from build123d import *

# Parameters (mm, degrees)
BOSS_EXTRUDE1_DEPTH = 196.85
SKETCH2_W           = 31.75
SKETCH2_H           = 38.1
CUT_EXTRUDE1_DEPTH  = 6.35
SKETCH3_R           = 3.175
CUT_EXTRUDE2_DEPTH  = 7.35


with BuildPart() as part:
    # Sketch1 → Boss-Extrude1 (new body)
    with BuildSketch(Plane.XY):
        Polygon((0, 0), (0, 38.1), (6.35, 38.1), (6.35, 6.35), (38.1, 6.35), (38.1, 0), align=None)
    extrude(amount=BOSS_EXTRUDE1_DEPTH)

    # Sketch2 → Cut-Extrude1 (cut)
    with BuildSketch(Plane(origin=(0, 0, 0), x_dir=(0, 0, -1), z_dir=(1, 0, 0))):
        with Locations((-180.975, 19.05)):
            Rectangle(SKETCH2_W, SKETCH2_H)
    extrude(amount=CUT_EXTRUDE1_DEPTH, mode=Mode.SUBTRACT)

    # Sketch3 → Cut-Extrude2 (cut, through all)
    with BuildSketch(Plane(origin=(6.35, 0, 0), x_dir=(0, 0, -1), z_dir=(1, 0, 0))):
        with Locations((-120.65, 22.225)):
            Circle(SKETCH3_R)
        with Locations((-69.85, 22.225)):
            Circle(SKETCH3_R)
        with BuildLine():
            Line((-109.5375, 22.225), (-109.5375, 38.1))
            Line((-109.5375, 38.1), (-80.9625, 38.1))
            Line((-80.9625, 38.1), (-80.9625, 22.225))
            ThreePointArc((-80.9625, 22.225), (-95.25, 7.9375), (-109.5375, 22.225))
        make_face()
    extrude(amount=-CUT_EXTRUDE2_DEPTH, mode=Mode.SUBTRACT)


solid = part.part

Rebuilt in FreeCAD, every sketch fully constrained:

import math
import FreeCAD as App
import Part
import Sketcher

V = App.Vector
Q = App.Units.Quantity

doc = App.newDocument("Part")
body = doc.addObject("PartDesign::Body", "Body")

# Sketch on XY plane
sketch1 = body.newObject("Sketcher::SketchObject", "Sketch")
sketch1.AttachmentSupport = (doc.getObject("XY_Plane"), [""])
sketch1.MapMode = "FlatFace"
sketch1.addGeometry([
    Part.LineSegment(V(0, 38, 0), V(0, 0, 0)),  # 0
    Part.LineSegment(V(0, 0, 0), V(38, 0, 0)),  # 1
    Part.LineSegment(V(38, 0, 0), V(38, 6, 0)),  # 2
    Part.LineSegment(V(38, 6, 0), V(6, 6, 0)),  # 3
    Part.LineSegment(V(6, 6, 0), V(6, 38, 0)),  # 4
    Part.LineSegment(V(6, 38, 0), V(0, 38, 0)),  # 5
], False)
sketch1.addConstraint([
    Sketcher.Constraint("Coincident", 0, 2, 1, 1),
    Sketcher.Constraint("Coincident", 1, 2, 2, 1),
    Sketcher.Constraint("Coincident", 2, 2, 3, 1),
    Sketcher.Constraint("Coincident", 3, 2, 4, 1),
    Sketcher.Constraint("Coincident", 4, 2, 5, 1),
    Sketcher.Constraint("Coincident", 5, 2, 0, 1),
    Sketcher.Constraint("Vertical", 0),
    Sketcher.Constraint("Horizontal", 1),
    Sketcher.Constraint("Vertical", 2),
    Sketcher.Constraint("Horizontal", 3),
    Sketcher.Constraint("Vertical", 4),
    Sketcher.Constraint("Horizontal", 5),
    Sketcher.Constraint("Coincident", 0, 2, -1, 1),
    Sketcher.Constraint("Equal", 1, 0),
    Sketcher.Constraint("Equal", 5, 2),
    Sketcher.Constraint("DistanceX", 1, 1, 1, 2, Q("1.5 in")),
    Sketcher.Constraint("DistanceX", 3, 2, 3, 1, Q("1.25 in")),
])
pad1 = body.newObject("PartDesign::Pad", "Pad")
pad1.Profile = sketch1
pad1.Length = Q("7.75 in")

# Sketch on YZ plane
sketch2 = body.newObject("Sketcher::SketchObject", "Sketch001")
sketch2.AttachmentSupport = (doc.getObject("YZ_Plane"), [""])
sketch2.MapMode = "FlatFace"
sketch2.addGeometry([
    Part.LineSegment(V(38, 197, 0), V(0, 197, 0)),
    Part.LineSegment(V(0, 197, 0), V(0, 165, 0)),
    Part.LineSegment(V(0, 165, 0), V(38, 165, 0)),
    Part.LineSegment(V(38, 165, 0), V(38, 197, 0)),
], False)
sketch2.addConstraint([
    Sketcher.Constraint("Coincident", 0, 2, 1, 1),
    Sketcher.Constraint("Coincident", 1, 2, 2, 1),
    Sketcher.Constraint("Coincident", 2, 2, 3, 1),
    Sketcher.Constraint("Coincident", 3, 2, 0, 1),
    Sketcher.Constraint("Horizontal", 0),
    Sketcher.Constraint("Vertical", 1),
    Sketcher.Constraint("Horizontal", 2),
    Sketcher.Constraint("Vertical", 3),
    Sketcher.Constraint("PointOnObject", 0, 2, -2),
    Sketcher.Constraint("DistanceX", 0, 2, 0, 1, Q("1.5 in")),
    Sketcher.Constraint("DistanceY", 1, 2, 1, 1, Q("1.25 in")),
    Sketcher.Constraint("DistanceY", -1, 1, 1, 2, Q("6.5 in")),
])
pocket1 = body.newObject("PartDesign::Pocket", "Pocket")
pocket1.Profile = sketch2
pocket1.Length = Q("0.25 in")
pocket1.Reversed = True

# Sketch on YZ plane
sketch3 = body.newObject("Sketcher::SketchObject", "Sketch002")
sketch3.AttachmentSupport = (doc.getObject("YZ_Plane"), [""])
sketch3.MapMode = "FlatFace"
sketch3.AttachmentOffset = App.Placement(V(0, 0, 0.25 * 25.4), App.Rotation())
sketch3.addGeometry([
    Part.Circle(V(22.2, 120.7, 0), V(0, 0, 1), 3.2),  # 0
    Part.Circle(V(22.2, 69.8, 0), V(0, 0, 1), 3.2),  # 1
    Part.LineSegment(V(38.1, 109.5, 0), V(22.2, 109.5, 0)),  # 2
    Part.ArcOfCircle(Part.Circle(V(22.2, 95.2, 0), V(0, 0, 1), 14.3), math.radians(90), math.radians(270)),  # 3
    Part.LineSegment(V(22.2, 81, 0), V(38.1, 81, 0)),  # 4
    Part.LineSegment(V(38.1, 81, 0), V(38.1, 109.5, 0)),  # 5
], False)
sketch3.addConstraint([
    Sketcher.Constraint("Tangent", 2, 2, 3, 1),
    Sketcher.Constraint("Tangent", 3, 2, 4, 1),
    Sketcher.Constraint("Coincident", 4, 2, 5, 1),
    Sketcher.Constraint("Coincident", 5, 2, 2, 1),
    Sketcher.Constraint("Horizontal", 2),
    Sketcher.Constraint("Horizontal", 4),
    Sketcher.Constraint("Vertical", 5),
    Sketcher.Constraint("Equal", 0, 1),
    Sketcher.Constraint("Vertical", 0, 3, 1, 3),
    Sketcher.Constraint("Vertical", 1, 3, 3, 3),
    Sketcher.Constraint("Diameter", 0, Q("0.25 in")),
    Sketcher.Constraint("Radius", 3, Q("0.5625 in")),
    Sketcher.Constraint("DistanceY", 1, 3, 0, 3, Q("2 in")),
    Sketcher.Constraint("DistanceY", 3, 3, 0, 3, Q("1 in")),
    Sketcher.Constraint("DistanceX", -1, 1, 4, 2, Q("1.5 in")),
    Sketcher.Constraint("DistanceX", 2, 2, 2, 1, Q("0.625 in")),
    Sketcher.Constraint("DistanceY", -1, 1, 0, 3, Q("4.75 in")),
])
pocket2 = body.newObject("PartDesign::Pocket", "Pocket001")
pocket2.Profile = sketch3
pocket2.Type = "ThroughAll"

doc.recompute()
